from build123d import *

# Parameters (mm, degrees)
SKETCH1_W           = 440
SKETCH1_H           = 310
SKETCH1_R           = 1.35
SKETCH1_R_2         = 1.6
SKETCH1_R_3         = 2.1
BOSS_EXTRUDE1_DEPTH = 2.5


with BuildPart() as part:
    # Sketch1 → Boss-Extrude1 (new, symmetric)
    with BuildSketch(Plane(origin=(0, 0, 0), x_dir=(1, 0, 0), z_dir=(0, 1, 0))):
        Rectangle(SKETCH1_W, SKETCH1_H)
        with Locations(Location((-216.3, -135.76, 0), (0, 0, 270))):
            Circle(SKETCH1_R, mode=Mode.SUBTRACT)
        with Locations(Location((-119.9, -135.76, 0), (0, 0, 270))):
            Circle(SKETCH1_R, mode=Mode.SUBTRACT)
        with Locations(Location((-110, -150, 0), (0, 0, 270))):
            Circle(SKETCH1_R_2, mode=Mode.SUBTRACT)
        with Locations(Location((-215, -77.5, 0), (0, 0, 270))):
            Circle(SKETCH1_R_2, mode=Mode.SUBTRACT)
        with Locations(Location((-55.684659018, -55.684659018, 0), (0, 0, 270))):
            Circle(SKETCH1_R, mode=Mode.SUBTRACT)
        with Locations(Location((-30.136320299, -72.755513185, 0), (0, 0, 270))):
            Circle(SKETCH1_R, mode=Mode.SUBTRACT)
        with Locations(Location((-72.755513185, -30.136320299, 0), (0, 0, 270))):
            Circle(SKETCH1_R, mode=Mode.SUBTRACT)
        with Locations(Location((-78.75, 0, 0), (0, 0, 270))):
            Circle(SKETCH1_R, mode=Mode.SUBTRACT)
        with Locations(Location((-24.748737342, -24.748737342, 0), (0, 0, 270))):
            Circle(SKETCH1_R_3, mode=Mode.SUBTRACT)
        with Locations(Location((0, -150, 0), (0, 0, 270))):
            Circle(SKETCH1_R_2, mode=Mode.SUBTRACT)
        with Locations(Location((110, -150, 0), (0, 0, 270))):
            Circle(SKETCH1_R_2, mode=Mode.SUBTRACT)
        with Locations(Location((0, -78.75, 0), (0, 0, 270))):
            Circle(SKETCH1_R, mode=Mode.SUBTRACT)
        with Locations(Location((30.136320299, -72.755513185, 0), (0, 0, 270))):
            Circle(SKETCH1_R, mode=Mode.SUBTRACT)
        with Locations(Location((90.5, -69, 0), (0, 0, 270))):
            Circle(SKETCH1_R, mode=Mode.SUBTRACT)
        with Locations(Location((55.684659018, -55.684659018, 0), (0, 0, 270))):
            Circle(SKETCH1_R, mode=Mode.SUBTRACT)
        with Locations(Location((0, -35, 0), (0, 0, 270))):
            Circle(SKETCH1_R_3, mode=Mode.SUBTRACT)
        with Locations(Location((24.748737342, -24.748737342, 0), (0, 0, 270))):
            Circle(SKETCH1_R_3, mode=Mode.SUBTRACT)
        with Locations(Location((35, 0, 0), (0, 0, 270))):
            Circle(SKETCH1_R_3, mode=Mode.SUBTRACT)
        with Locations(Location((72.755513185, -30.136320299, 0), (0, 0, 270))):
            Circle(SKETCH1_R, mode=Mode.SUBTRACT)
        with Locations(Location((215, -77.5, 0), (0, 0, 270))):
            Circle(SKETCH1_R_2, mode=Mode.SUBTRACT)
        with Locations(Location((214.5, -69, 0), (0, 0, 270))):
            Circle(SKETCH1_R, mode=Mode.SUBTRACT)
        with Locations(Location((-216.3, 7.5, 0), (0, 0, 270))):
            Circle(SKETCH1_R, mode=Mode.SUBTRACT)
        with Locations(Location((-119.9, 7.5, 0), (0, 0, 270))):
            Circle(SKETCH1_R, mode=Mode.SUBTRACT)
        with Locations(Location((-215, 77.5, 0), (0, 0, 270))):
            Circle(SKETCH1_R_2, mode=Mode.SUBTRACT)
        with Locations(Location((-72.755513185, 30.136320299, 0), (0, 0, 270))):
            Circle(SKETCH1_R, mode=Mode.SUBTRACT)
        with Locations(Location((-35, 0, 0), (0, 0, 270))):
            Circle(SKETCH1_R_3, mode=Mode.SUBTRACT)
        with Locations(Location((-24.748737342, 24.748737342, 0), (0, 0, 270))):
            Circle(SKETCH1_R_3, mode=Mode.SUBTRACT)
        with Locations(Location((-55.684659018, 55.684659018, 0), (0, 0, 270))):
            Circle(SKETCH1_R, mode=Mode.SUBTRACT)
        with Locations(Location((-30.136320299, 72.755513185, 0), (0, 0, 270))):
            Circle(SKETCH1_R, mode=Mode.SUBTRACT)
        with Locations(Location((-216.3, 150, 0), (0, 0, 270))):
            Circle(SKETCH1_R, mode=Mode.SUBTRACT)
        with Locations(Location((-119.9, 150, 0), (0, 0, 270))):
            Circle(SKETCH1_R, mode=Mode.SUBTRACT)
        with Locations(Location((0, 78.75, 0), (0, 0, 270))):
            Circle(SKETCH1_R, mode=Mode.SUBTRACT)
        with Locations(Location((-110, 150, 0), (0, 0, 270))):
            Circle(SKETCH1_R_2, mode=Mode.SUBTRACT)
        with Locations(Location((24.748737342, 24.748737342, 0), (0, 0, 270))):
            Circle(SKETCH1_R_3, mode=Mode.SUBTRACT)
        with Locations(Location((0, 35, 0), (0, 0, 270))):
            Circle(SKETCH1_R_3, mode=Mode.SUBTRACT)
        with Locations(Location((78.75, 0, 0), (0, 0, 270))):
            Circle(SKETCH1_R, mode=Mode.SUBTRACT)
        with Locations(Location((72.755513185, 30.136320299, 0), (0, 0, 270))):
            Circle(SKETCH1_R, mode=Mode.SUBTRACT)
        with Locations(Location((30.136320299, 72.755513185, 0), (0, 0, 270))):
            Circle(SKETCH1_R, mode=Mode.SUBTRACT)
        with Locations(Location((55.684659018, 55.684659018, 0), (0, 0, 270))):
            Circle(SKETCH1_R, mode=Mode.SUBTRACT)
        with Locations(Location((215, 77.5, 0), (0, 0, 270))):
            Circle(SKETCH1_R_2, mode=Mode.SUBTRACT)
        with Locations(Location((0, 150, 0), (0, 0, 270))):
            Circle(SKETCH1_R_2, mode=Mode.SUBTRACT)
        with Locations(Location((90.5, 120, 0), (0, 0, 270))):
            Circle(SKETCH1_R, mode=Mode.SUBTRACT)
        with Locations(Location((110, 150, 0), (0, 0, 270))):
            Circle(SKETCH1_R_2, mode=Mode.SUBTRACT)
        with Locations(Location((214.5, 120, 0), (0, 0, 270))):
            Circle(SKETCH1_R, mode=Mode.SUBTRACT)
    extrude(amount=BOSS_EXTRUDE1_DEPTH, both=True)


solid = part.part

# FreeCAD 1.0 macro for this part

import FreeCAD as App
import Part
import Sketcher

V = App.Vector


def add_polygon(sketch, points):
    """Adds a closed chain of lines whose ends are joined by coincident constraints."""
    first, n = sketch.GeometryCount, len(points)
    for a, b in zip(points, points[1:] + points[:1]):
        sketch.addGeometry(Part.LineSegment(App.Vector(*a, 0), App.Vector(*b, 0)), False)
    for i in range(n):
        sketch.addConstraint(Sketcher.Constraint("Coincident", first + i, 2, first + (i + 1) % n, 1))

doc = App.newDocument("Part")
params = doc.addObject("Spreadsheet::Sheet", "Params")
for row, (alias, value) in enumerate([
    ("sketch1_diameter", "2.7 mm"),
    ("sketch1_diameter2", "3.2 mm"),
    ("sketch1_diameter3", "4.2 mm"),
    ("sketch1_width", "440 mm"),
    ("sketch1_height", "310 mm"),
    ("pad1_length", "5 mm"),
], start=1):
    params.set(f"A{row}", alias)
    params.set(f"B{row}", "=" + value)
    params.setAlias(f"B{row}", alias)

body = doc.addObject("PartDesign::Body", "Body")

# Sketch on XZ plane
sketch1 = doc.addObject("Sketcher::SketchObject", "Sketch")
body.addObject(sketch1)
sketch1.AttachmentSupport = (doc.XZ_Plane, [""])
sketch1.MapMode = "FlatFace"
add_polygon(sketch1, [(-220, -155), (-220, 155), (220, 155), (220, -155)])  # lines 0-3
sketch1.addGeometry(Part.Circle(V(-216.3, 135.8, 0), V(0, 0, 1), 1.4), False)  # 4
sketch1.addGeometry(Part.Circle(V(-110, 150, 0), V(0, 0, 1), 1.6), False)  # 5
sketch1.addGeometry(Part.Circle(V(-119.9, 135.8, 0), V(0, 0, 1), 1.4), False)  # 6
sketch1.addGeometry(Part.Circle(V(-215, 77.5, 0), V(0, 0, 1), 1.6), False)  # 7
sketch1.addGeometry(Part.Circle(V(-55.7, 55.7, 0), V(0, 0, 1), 1.4), False)  # 8
sketch1.addGeometry(Part.Circle(V(-30.1, 72.8, 0), V(0, 0, 1), 1.4), False)  # 9
sketch1.addGeometry(Part.Circle(V(-72.8, 30.1, 0), V(0, 0, 1), 1.4), False)  # 10
sketch1.addGeometry(Part.Circle(V(-24.7, 24.7, 0), V(0, 0, 1), 2.1), False)  # 11
sketch1.addGeometry(Part.Circle(V(0, 150, 0), V(0, 0, 1), 1.6), False)  # 12
sketch1.addGeometry(Part.Circle(V(0, 78.8, 0), V(0, 0, 1), 1.4), False)  # 13
sketch1.addGeometry(Part.Circle(V(110, 150, 0), V(0, 0, 1), 1.6), False)  # 14
sketch1.addGeometry(Part.Circle(V(215, 77.5, 0), V(0, 0, 1), 1.6), False)  # 15
sketch1.addGeometry(Part.Circle(V(30.1, 72.8, 0), V(0, 0, 1), 1.4), False)  # 16
sketch1.addGeometry(Part.Circle(V(90.5, 69, 0), V(0, 0, 1), 1.4), False)  # 17
sketch1.addGeometry(Part.Circle(V(55.7, 55.7, 0), V(0, 0, 1), 1.4), False)  # 18
sketch1.addGeometry(Part.Circle(V(0, 35, 0), V(0, 0, 1), 2.1), False)  # 19
sketch1.addGeometry(Part.Circle(V(24.7, 24.7, 0), V(0, 0, 1), 2.1), False)  # 20
sketch1.addGeometry(Part.Circle(V(72.8, 30.1, 0), V(0, 0, 1), 1.4), False)  # 21
sketch1.addGeometry(Part.Circle(V(214.5, 69, 0), V(0, 0, 1), 1.4), False)  # 22
sketch1.addGeometry(Part.Circle(V(-216.3, -7.5, 0), V(0, 0, 1), 1.4), False)  # 23
sketch1.addGeometry(Part.Circle(V(-119.9, -7.5, 0), V(0, 0, 1), 1.4), False)  # 24
sketch1.addGeometry(Part.Circle(V(-78.8, 0, 0), V(0, 0, 1), 1.4), False)  # 25
sketch1.addGeometry(Part.Circle(V(-72.8, -30.1, 0), V(0, 0, 1), 1.4), False)  # 26
sketch1.addGeometry(Part.Circle(V(-35, 0, 0), V(0, 0, 1), 2.1), False)  # 27
sketch1.addGeometry(Part.Circle(V(-24.7, -24.7, 0), V(0, 0, 1), 2.1), False)  # 28
sketch1.addGeometry(Part.Circle(V(-55.7, -55.7, 0), V(0, 0, 1), 1.4), False)  # 29
sketch1.addGeometry(Part.Circle(V(-30.1, -72.8, 0), V(0, 0, 1), 1.4), False)  # 30
sketch1.addGeometry(Part.Circle(V(-215, -77.5, 0), V(0, 0, 1), 1.6), False)  # 31
sketch1.addGeometry(Part.Circle(V(-216.3, -150, 0), V(0, 0, 1), 1.4), False)  # 32
sketch1.addGeometry(Part.Circle(V(-119.9, -150, 0), V(0, 0, 1), 1.4), False)  # 33
sketch1.addGeometry(Part.Circle(V(-110, -150, 0), V(0, 0, 1), 1.6), False)  # 34
sketch1.addGeometry(Part.Circle(V(35, 0, 0), V(0, 0, 1), 2.1), False)  # 35
sketch1.addGeometry(Part.Circle(V(24.7, -24.7, 0), V(0, 0, 1), 2.1), False)  # 36
sketch1.addGeometry(Part.Circle(V(0, -35, 0), V(0, 0, 1), 2.1), False)  # 37
sketch1.addGeometry(Part.Circle(V(78.8, 0, 0), V(0, 0, 1), 1.4), False)  # 38
sketch1.addGeometry(Part.Circle(V(72.8, -30.1, 0), V(0, 0, 1), 1.4), False)  # 39
sketch1.addGeometry(Part.Circle(V(30.1, -72.8, 0), V(0, 0, 1), 1.4), False)  # 40
sketch1.addGeometry(Part.Circle(V(55.7, -55.7, 0), V(0, 0, 1), 1.4), False)  # 41
sketch1.addGeometry(Part.Circle(V(0, -78.8, 0), V(0, 0, 1), 1.4), False)  # 42
sketch1.addGeometry(Part.Circle(V(0, -150, 0), V(0, 0, 1), 1.6), False)  # 43
sketch1.addGeometry(Part.Circle(V(90.5, -120, 0), V(0, 0, 1), 1.4), False)  # 44
sketch1.addGeometry(Part.Circle(V(215, -77.5, 0), V(0, 0, 1), 1.6), False)  # 45
sketch1.addGeometry(Part.Circle(V(110, -150, 0), V(0, 0, 1), 1.6), False)  # 46
sketch1.addGeometry(Part.Circle(V(214.5, -120, 0), V(0, 0, 1), 1.4), False)  # 47
sketch1.addConstraint([
    Sketcher.Constraint("Vertical", 0),
    Sketcher.Constraint("Horizontal", 1),
    Sketcher.Constraint("Vertical", 2),
    Sketcher.Constraint("Horizontal", 3),
    Sketcher.Constraint("Equal", 4, 6),
    Sketcher.Constraint("Equal", 5, 7),
    Sketcher.Constraint("Equal", 6, 8),
    Sketcher.Constraint("Equal", 8, 9),
    Sketcher.Constraint("Equal", 9, 10),
    Sketcher.Constraint("Equal", 7, 12),
    Sketcher.Constraint("Equal", 10, 13),
    Sketcher.Constraint("Equal", 12, 14),
    Sketcher.Constraint("Equal", 14, 15),
    Sketcher.Constraint("Equal", 13, 16),
    Sketcher.Constraint("Equal", 16, 17),
    Sketcher.Constraint("Equal", 17, 18),
    Sketcher.Constraint("Equal", 11, 19),
    Sketcher.Constraint("Equal", 19, 20),
    Sketcher.Constraint("Equal", 18, 21),
    Sketcher.Constraint("Equal", 21, 22),
    Sketcher.Constraint("Equal", 22, 23),
    Sketcher.Constraint("Equal", 23, 24),
    Sketcher.Constraint("Equal", 24, 25),
    Sketcher.Constraint("Equal", 25, 26),
    Sketcher.Constraint("Equal", 20, 27),
    Sketcher.Constraint("Equal", 27, 28),
    Sketcher.Constraint("Equal", 26, 29),
    Sketcher.Constraint("Equal", 29, 30),
    Sketcher.Constraint("Equal", 15, 31),
    Sketcher.Constraint("Equal", 30, 32),
    Sketcher.Constraint("Equal", 32, 33),
    Sketcher.Constraint("Equal", 31, 34),
    Sketcher.Constraint("Equal", 28, 35),
    Sketcher.Constraint("Equal", 35, 36),
    Sketcher.Constraint("Equal", 36, 37),
    Sketcher.Constraint("Equal", 33, 38),
    Sketcher.Constraint("Equal", 38, 39),
    Sketcher.Constraint("Equal", 39, 40),
    Sketcher.Constraint("Equal", 40, 41),
    Sketcher.Constraint("Equal", 41, 42),
    Sketcher.Constraint("Equal", 34, 43),
    Sketcher.Constraint("Equal", 42, 44),
    Sketcher.Constraint("Equal", 43, 45),
    Sketcher.Constraint("Equal", 45, 46),
    Sketcher.Constraint("Equal", 44, 47),
    Sketcher.Constraint("Symmetric", 21, 3, 26, 3, -1, 1),
    Sketcher.Constraint("Symmetric", 20, 3, 28, 3, -1, 1),
    Sketcher.Constraint("Symmetric", 18, 3, 29, 3, -1, 1),
    Sketcher.Constraint("Symmetric", 16, 3, 30, 3, -1, 1),
    Sketcher.Constraint("Symmetric", 15, 3, 31, 3, -1, 1),
    Sketcher.Constraint("Symmetric", 14, 3, 34, 3, -1, 1),
    Sketcher.Constraint("Symmetric", 27, 3, 35, 3, -1, 1),
    Sketcher.Constraint("Symmetric", 11, 3, 36, 3, -1, 1),
    Sketcher.Constraint("Symmetric", 19, 3, 37, 3, -1, 1),
    Sketcher.Constraint("Symmetric", 25, 3, 38, 3, -1, 1),
    Sketcher.Constraint("Symmetric", 10, 3, 39, 3, -1, 1),
    Sketcher.Constraint("Symmetric", 9, 3, 40, 3, -1, 1),
    Sketcher.Constraint("Symmetric", 8, 3, 41, 3, -1, 1),
    Sketcher.Constraint("Symmetric", 13, 3, 42, 3, -1, 1),
    Sketcher.Constraint("Symmetric", 12, 3, 43, 3, -1, 1),
    Sketcher.Constraint("Symmetric", 7, 3, 45, 3, -1, 1),
    Sketcher.Constraint("Symmetric", 5, 3, 46, 3, -1, 1),
    Sketcher.Constraint("Symmetric", 0, 2, 2, 2, -1, 1),
    Sketcher.Constraint("Symmetric", 5, 3, 14, 3, -2),
    Sketcher.Constraint("Symmetric", 7, 3, 15, 3, -2),
    Sketcher.Constraint("Symmetric", 9, 3, 16, 3, -2),
    Sketcher.Constraint("Symmetric", 8, 3, 18, 3, -2),
    Sketcher.Constraint("Symmetric", 11, 3, 20, 3, -2),
    Sketcher.Constraint("Symmetric", 10, 3, 21, 3, -2),
    Sketcher.Constraint("PointOnObject", 12, 3, -2),
    Sketcher.Constraint("PointOnObject", 13, 3, -2),
    Sketcher.Constraint("PointOnObject", 19, 3, -2),
    Sketcher.Constraint("PointOnObject", 25, 3, -1),
    Sketcher.Constraint("PointOnObject", 27, 3, -1),
    Sketcher.Constraint("Horizontal", 4, 3, 6, 3),
    Sketcher.Constraint("Horizontal", 5, 3, 12, 3),
    Sketcher.Constraint("Horizontal", 17, 3, 22, 3),
    Sketcher.Constraint("Horizontal", 23, 3, 24, 3),
    Sketcher.Constraint("Horizontal", 32, 3, 33, 3),
    Sketcher.Constraint("Horizontal", 33, 3, 34, 3),
    Sketcher.Constraint("Horizontal", 44, 3, 47, 3),
    Sketcher.Constraint("Vertical", 4, 3, 23, 3),
    Sketcher.Constraint("Vertical", 6, 3, 24, 3),
    Sketcher.Constraint("Vertical", 23, 3, 32, 3),
    Sketcher.Constraint("Vertical", 24, 3, 33, 3),
    Sketcher.Constraint("Vertical", 17, 3, 44, 3),
    Sketcher.Constraint("Vertical", 22, 3, 47, 3),
    Sketcher.Constraint("Diameter", 4, 2.7),
    Sketcher.Constraint("Diameter", 5, 3.2),
    Sketcher.Constraint("Diameter", 11, 4.2),
    Sketcher.Constraint("DistanceX", 1, 1, 1, 2, 440.0),
    Sketcher.Constraint("DistanceY", 0, 1, 0, 2, 310.0),
    Sketcher.Constraint("DistanceX", 5, 3, -1, 1, 110.0),
    Sketcher.Constraint("DistanceY", -1, 1, 5, 3, 150.0),
    Sketcher.Constraint("DistanceX", 7, 3, -1, 1, 215.0),
    Sketcher.Constraint("DistanceY", -1, 1, 17, 3, 69.0),
    Sketcher.Constraint("DistanceY", -1, 1, 19, 3, 35.0),
    Sketcher.Constraint("DistanceX", 27, 3, -1, 1, 35.0),
    Sketcher.Constraint("DistanceY", 44, 3, -1, 1, 120.0),
    Sketcher.Constraint("DistanceX", 17, 3, 22, 3, 124.0),
    Sketcher.Constraint("DistanceY", 23, 3, 7, 3, 85.0),
    Sketcher.Constraint("DistanceY", 31, 3, 23, 3, 70.0),
    Sketcher.Constraint("DistanceX", 4, 3, -1, 1, 216.3),
    Sketcher.Constraint("DistanceX", 6, 3, -1, 1, 119.9),
    Sketcher.Constraint("DistanceX", -1, 1, 17, 3, 90.5),
    Sketcher.Constraint("DistanceY", -1, 1, 4, 3, 135.76),
    Sketcher.Constraint("DistanceY", -1, 1, 13, 3, 78.75),
    Sketcher.Constraint("DistanceX", 25, 3, -1, 1, 78.75),
    Sketcher.Constraint("DistanceX", 8, 3, -1, 1, 55.684659),
    Sketcher.Constraint("DistanceY", -1, 1, 8, 3, 55.684659),
    Sketcher.Constraint("DistanceX", 9, 3, -1, 1, 30.13632),
    Sketcher.Constraint("DistanceY", -1, 1, 10, 3, 30.13632),
    Sketcher.Constraint("DistanceX", 8, 3, 11, 3, 30.935922),
    Sketcher.Constraint("DistanceY", 11, 3, 8, 3, 30.935922),
    Sketcher.Constraint("DistanceY", -1, 1, 9, 3, 72.755513),
    Sketcher.Constraint("DistanceX", 10, 3, -1, 1, 72.755513),
])
sketch1.setExpression("Constraints[91]", "Params.sketch1_diameter")
sketch1.setExpression("Constraints[92]", "Params.sketch1_diameter2")
sketch1.setExpression("Constraints[93]", "Params.sketch1_diameter3")
sketch1.setExpression("Constraints[94]", "Params.sketch1_width")
sketch1.setExpression("Constraints[95]", "Params.sketch1_height")
pad1 = doc.addObject("PartDesign::Pad", "Pad")
body.addObject(pad1)
pad1.Profile = sketch1
pad1.setExpression("Length", "Params.pad1_length")
pad1.Midplane = True

doc.recompute()
